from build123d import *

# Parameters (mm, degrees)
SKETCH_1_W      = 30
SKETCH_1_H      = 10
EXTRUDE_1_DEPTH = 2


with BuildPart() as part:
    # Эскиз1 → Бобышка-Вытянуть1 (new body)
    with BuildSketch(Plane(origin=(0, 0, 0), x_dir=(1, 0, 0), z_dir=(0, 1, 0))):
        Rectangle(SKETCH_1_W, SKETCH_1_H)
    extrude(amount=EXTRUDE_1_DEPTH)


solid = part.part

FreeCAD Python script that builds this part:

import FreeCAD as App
import Part
import Sketcher
Q = App.Units.Quantity


def add_polygon(sketch, points):
    """Adds a closed chain of lines whose ends are joined by coincident constraints."""
    first, n = sketch.GeometryCount, len(points)
    for a, b in zip(points, points[1:] + points[:1]):
        sketch.addGeometry(Part.LineSegment(App.Vector(*a, 0), App.Vector(*b, 0)), False)
    for i in range(n):
        sketch.addConstraint(Sketcher.Constraint("Coincident", first + i, 2, first + (i + 1) % n, 1))

doc = App.newDocument("Part")
params = doc.addObject("Spreadsheet::Sheet", "Params")
for row, (alias, value) in enumerate([
    ("sketch1_width", "30 mm"),
    ("sketch1_height", "10 mm"),
    ("pad1_length", "2 mm"),
], start=1):
    params.set(f"A{row}", alias)
    params.set(f"B{row}", "=" + value)
    params.setAlias(f"B{row}", alias)

body = doc.addObject("PartDesign::Body", "Body")

# Sketch on XZ plane
sketch1 = body.newObject("Sketcher::SketchObject", "Sketch")
sketch1.AttachmentSupport = (doc.getObject("XZ_Plane"), [""])
sketch1.MapMode = "FlatFace"
add_polygon(sketch1, [(-15, -5), (-15, 5), (15, 5), (15, -5)])  # lines 0-3
sketch1.addConstraint([
    Sketcher.Constraint("Vertical", 0),
    Sketcher.Constraint("Horizontal", 1),
    Sketcher.Constraint("Vertical", 2),
    Sketcher.Constraint("Horizontal", 3),
    Sketcher.Constraint("Symmetric", 0, 2, 2, 2, -1, 1),
    Sketcher.Constraint("DistanceX", 1, 1, 1, 2, Q("30 mm")),
    Sketcher.Constraint("DistanceY", 0, 1, 0, 2, Q("10 mm")),
])
sketch1.setExpression("Constraints[9]", "Params.sketch1_width")
sketch1.setExpression("Constraints[10]", "Params.sketch1_height")
pad1 = body.newObject("PartDesign::Pad", "Pad")
pad1.Profile = sketch1
pad1.setExpression("Length", "Params.pad1_length")
pad1.Reversed = True

doc.recompute()
